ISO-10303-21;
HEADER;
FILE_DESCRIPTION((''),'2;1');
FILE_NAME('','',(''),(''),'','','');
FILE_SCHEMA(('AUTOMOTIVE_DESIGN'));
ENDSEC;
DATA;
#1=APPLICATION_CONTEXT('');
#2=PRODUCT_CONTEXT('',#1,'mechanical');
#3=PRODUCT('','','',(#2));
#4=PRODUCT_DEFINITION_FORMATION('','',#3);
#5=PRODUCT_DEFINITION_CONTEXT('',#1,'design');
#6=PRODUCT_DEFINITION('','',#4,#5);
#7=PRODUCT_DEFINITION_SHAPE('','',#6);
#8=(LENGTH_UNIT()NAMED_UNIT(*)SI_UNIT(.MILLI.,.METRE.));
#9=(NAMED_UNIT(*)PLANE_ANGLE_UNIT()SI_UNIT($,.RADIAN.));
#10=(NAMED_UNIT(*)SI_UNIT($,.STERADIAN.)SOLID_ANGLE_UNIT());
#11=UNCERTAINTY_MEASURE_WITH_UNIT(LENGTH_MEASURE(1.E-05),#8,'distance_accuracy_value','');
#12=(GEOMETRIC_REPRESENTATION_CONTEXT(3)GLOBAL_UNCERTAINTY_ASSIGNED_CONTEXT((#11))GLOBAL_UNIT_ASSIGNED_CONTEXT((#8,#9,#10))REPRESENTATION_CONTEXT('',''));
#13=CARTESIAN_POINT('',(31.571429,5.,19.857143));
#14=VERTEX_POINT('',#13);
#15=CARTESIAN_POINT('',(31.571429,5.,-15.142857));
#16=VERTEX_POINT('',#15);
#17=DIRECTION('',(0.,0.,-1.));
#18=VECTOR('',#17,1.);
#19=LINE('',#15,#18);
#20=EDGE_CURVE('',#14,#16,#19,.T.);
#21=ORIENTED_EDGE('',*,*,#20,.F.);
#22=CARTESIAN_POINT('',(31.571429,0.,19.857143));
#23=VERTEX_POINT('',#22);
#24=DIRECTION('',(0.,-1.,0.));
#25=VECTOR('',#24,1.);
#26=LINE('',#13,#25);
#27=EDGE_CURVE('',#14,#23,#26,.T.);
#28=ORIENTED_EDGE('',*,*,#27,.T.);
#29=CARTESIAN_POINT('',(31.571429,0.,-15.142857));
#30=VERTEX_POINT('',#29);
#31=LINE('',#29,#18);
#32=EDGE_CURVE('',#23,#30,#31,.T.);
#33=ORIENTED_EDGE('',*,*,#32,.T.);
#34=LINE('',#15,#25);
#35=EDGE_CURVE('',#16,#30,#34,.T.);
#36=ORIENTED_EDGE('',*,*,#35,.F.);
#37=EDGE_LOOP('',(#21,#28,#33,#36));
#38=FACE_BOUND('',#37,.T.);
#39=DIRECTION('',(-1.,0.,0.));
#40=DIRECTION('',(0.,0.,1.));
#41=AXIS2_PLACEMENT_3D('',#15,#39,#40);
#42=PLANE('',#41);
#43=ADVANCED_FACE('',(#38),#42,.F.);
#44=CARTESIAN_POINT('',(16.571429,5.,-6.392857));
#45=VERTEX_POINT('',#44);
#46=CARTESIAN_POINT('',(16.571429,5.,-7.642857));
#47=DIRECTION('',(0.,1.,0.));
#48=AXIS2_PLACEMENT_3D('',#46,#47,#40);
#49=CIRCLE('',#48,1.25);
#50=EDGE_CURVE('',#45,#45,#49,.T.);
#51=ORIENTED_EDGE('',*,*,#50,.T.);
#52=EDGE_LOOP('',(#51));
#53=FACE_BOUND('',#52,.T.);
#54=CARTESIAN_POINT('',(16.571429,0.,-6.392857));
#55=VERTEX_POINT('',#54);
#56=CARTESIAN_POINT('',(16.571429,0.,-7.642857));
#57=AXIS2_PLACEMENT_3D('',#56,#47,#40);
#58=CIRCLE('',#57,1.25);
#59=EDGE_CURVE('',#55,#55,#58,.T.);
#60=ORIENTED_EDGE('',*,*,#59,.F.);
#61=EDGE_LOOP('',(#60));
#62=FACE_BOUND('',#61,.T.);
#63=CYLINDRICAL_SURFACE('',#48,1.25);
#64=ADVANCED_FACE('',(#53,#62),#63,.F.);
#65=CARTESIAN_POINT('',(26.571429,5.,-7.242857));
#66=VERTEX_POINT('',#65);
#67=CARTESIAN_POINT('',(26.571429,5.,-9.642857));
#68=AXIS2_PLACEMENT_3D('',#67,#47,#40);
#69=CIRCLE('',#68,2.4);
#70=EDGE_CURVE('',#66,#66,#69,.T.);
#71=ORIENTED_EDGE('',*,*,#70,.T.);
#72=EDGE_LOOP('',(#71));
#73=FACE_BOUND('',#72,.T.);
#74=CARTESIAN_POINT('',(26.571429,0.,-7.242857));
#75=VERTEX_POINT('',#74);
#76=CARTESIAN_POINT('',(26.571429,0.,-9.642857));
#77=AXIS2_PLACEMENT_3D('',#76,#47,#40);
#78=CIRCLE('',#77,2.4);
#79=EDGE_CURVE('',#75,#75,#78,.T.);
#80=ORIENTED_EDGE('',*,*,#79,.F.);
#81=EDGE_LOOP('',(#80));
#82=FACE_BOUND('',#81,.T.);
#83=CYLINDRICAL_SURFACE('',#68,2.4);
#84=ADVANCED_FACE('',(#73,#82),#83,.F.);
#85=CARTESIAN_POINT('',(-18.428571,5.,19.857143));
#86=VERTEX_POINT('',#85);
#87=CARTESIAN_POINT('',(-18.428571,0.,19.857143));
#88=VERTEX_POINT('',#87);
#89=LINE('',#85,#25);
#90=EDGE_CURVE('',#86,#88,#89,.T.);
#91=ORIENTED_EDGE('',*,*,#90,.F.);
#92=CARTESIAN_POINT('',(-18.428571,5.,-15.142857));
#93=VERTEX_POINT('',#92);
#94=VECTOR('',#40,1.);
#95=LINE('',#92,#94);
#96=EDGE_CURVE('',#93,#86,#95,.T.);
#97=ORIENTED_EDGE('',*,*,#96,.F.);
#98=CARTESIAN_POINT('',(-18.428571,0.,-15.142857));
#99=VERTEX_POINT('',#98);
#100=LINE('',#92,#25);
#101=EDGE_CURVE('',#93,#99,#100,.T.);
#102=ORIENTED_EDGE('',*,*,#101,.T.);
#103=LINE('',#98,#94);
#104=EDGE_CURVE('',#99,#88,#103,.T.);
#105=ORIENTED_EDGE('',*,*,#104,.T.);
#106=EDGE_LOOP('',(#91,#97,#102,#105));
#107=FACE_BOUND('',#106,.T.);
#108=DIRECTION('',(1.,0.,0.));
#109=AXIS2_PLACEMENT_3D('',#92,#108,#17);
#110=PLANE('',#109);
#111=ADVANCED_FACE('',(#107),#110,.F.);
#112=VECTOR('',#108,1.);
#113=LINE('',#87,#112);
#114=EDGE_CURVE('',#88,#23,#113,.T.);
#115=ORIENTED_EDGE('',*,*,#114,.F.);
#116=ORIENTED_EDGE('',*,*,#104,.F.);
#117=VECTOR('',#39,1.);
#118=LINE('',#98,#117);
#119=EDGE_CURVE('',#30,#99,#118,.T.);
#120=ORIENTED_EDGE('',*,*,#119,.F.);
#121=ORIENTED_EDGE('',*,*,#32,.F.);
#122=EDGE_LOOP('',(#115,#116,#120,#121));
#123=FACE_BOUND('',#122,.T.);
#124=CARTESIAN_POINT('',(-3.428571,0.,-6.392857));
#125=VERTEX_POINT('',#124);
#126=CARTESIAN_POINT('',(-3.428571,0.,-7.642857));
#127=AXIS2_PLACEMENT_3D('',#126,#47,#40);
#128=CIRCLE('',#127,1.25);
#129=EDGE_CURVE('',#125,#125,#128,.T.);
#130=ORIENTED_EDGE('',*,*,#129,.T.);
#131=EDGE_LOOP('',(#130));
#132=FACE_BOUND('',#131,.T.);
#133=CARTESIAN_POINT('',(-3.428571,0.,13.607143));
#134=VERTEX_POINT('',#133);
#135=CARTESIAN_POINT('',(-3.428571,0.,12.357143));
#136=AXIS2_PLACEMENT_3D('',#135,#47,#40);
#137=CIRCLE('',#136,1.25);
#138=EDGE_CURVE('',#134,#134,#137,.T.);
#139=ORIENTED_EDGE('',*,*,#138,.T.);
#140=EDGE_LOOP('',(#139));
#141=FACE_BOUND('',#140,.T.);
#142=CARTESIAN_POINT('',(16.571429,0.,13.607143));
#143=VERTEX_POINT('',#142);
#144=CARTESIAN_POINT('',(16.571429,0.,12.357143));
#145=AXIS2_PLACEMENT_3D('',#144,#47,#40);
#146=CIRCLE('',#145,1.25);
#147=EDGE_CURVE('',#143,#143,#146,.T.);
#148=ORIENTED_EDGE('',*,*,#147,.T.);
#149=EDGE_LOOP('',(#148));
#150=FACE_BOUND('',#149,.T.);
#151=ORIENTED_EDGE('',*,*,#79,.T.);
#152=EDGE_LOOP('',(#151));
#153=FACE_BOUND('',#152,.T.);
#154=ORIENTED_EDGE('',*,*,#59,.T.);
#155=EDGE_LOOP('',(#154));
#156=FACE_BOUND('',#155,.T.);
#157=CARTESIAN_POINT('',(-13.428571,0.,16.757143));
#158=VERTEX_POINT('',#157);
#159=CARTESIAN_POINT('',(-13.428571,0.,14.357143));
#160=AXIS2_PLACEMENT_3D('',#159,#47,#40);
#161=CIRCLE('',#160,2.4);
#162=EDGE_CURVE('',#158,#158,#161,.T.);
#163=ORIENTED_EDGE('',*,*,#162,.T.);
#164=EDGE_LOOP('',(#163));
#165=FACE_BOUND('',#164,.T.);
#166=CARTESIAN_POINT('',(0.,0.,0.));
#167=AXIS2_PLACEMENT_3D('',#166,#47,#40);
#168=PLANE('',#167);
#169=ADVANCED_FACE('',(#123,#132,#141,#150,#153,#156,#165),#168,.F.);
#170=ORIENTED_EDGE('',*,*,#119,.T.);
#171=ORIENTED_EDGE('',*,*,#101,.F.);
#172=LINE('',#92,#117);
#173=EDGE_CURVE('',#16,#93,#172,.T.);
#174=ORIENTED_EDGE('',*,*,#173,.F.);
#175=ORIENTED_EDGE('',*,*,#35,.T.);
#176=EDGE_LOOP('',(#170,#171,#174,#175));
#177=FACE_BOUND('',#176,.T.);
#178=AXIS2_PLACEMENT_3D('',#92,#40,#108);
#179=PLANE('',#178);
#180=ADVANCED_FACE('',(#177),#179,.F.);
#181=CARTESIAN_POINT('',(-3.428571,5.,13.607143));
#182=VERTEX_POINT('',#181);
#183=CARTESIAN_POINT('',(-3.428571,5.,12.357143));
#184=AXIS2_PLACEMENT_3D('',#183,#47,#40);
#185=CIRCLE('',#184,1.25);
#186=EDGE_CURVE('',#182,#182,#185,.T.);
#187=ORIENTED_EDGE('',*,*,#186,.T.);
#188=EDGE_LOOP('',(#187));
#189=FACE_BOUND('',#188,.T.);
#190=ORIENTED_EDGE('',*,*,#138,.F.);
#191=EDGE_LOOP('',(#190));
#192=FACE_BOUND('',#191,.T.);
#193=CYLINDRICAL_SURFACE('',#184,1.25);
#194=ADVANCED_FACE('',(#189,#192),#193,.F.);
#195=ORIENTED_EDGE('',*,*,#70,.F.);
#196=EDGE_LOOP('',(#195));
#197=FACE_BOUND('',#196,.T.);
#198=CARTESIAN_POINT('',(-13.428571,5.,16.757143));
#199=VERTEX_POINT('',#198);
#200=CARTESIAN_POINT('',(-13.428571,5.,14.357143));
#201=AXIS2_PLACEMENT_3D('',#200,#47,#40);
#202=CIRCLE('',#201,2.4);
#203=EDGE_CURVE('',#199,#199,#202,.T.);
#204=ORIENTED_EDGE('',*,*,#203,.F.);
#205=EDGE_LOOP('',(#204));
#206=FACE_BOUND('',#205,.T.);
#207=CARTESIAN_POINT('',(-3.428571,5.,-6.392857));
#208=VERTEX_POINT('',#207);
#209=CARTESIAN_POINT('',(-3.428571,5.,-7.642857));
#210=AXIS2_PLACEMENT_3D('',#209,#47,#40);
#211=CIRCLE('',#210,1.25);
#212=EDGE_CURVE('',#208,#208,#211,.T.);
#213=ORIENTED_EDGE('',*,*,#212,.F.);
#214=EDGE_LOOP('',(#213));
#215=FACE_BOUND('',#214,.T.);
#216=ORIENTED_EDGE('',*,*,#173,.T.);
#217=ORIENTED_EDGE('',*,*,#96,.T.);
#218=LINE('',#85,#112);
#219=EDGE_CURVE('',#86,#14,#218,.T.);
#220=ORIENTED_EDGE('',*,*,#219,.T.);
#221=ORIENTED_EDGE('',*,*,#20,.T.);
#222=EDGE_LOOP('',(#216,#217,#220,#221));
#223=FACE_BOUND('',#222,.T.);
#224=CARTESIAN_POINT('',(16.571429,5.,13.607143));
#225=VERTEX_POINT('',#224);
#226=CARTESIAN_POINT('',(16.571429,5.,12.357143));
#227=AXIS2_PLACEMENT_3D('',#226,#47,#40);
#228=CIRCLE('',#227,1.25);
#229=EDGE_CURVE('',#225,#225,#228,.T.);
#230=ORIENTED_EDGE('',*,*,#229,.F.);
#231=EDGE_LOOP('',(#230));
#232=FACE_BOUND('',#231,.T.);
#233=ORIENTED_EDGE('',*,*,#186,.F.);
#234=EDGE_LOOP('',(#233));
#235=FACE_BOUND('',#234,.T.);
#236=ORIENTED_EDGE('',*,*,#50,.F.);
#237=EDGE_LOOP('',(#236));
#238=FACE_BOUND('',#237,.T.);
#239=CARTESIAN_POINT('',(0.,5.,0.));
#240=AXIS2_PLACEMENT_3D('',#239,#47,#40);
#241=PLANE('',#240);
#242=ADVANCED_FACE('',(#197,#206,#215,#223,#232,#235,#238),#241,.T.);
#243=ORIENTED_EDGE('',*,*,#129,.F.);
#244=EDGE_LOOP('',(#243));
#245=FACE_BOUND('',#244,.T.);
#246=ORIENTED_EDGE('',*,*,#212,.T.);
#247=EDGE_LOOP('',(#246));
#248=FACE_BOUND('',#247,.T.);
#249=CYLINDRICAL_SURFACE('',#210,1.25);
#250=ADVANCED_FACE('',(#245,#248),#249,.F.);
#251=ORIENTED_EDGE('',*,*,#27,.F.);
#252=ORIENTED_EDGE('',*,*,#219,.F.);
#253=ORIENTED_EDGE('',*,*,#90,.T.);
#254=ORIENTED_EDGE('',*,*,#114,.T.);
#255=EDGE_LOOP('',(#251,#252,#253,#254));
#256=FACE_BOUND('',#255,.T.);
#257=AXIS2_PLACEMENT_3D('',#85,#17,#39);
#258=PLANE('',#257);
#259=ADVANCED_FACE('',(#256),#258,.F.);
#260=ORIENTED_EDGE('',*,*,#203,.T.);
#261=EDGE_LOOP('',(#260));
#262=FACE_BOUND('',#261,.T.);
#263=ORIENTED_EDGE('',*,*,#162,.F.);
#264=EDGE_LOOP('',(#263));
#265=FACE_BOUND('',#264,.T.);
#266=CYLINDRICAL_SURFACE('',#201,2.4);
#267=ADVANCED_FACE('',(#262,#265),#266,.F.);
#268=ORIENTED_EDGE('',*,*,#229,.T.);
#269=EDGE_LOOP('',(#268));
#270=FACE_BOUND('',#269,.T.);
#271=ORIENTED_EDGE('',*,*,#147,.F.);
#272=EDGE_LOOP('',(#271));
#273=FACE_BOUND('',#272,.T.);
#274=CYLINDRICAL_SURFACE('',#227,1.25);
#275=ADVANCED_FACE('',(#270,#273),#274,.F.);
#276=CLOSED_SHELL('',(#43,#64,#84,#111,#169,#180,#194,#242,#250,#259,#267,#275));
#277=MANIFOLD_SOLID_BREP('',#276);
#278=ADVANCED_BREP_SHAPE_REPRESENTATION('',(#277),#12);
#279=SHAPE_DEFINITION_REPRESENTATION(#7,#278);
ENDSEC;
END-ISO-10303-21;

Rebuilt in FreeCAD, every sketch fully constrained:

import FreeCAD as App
import Part
import Sketcher
Q = App.Units.Quantity


def add_polygon(sketch, points):
    """Adds a closed chain of lines whose ends are joined by coincident constraints."""
    first, n = sketch.GeometryCount, len(points)
    for a, b in zip(points, points[1:] + points[:1]):
        sketch.addGeometry(Part.LineSegment(App.Vector(*a, 0), App.Vector(*b, 0)), False)
    for i in range(n):
        sketch.addConstraint(Sketcher.Constraint("Coincident", first + i, 2, first + (i + 1) % n, 1))

doc = App.newDocument("Part")
params = doc.addObject("Spreadsheet::Sheet", "Params")
for row, (alias, value) in enumerate([
    ("sketch1_width", "50 mm"),
    ("sketch1_height", "35 mm"),
    ("pad1_length", "5 mm"),
    ("sketch2_diameter", "2.5 mm"),
    ("hole_diameter", "2.5 mm"),
    ("sketch3_diameter", "4.8 mm"),
    ("hole2_diameter", "4.8 mm"),
], start=1):
    params.set(f"A{row}", alias)
    params.set(f"B{row}", "=" + value)
    params.setAlias(f"B{row}", alias)

body = doc.addObject("PartDesign::Body", "Body")

# Sketch on XZ plane
sketch1 = body.newObject("Sketcher::SketchObject", "Sketch")
sketch1.AttachmentSupport = (doc.getObject("XZ_Plane"), [""])
sketch1.MapMode = "FlatFace"
add_polygon(sketch1, [(-18, -15), (-18, 20), (32, 20), (32, -15)])  # lines 0-3
sketch1.addConstraint(Sketcher.Constraint("Vertical", 0))
sketch1.addConstraint(Sketcher.Constraint("Horizontal", 1))
sketch1.addConstraint(Sketcher.Constraint("Vertical", 2))
sketch1.addConstraint(Sketcher.Constraint("Horizontal", 3))
sketch1.addConstraint(Sketcher.Constraint("DistanceX", 1, 1, 1, 2, Q("50 mm")))
sketch1.addConstraint(Sketcher.Constraint("DistanceY", 0, 1, 0, 2, Q("35 mm")))
sketch1.addConstraint(Sketcher.Constraint("DistanceX", 0, 2, -1, 1, Q("18.428571 mm")))
sketch1.addConstraint(Sketcher.Constraint("DistanceY", -1, 1, 0, 2, Q("19.857143 mm")))
sketch1.setExpression("Constraints[8]", "Params.sketch1_width")
sketch1.setExpression("Constraints[9]", "Params.sketch1_height")
pad1 = body.newObject("PartDesign::Pad", "Pad")
pad1.Profile = sketch1
pad1.setExpression("Length", "Params.pad1_length")
pad1.Reversed = True

# Sketch on XZ plane
sketch2 = body.newObject("Sketcher::SketchObject", "Sketch001")
sketch2.AttachmentSupport = (doc.getObject("XZ_Plane"), [""])
sketch2.MapMode = "FlatFace"
sketch2.AttachmentOffset = App.Placement(App.Vector(0, 0, -5), App.Rotation())
sketch2.addGeometry(Part.Circle(App.Vector(16.6, -7.6, 0), App.Vector(0, 0, 1), 1.2), False)
sketch2.addGeometry(Part.Circle(App.Vector(-3.4, -7.6, 0), App.Vector(0, 0, 1), 1.2), False)
sketch2.addGeometry(Part.Circle(App.Vector(16.6, 12.4, 0), App.Vector(0, 0, 1), 1.2), False)
sketch2.addGeometry(Part.Circle(App.Vector(-3.4, 12.4, 0), App.Vector(0, 0, 1), 1.2), False)
sketch2.addConstraint(Sketcher.Constraint("Equal", 0, 1))
sketch2.addConstraint(Sketcher.Constraint("Equal", 1, 2))
sketch2.addConstraint(Sketcher.Constraint("Equal", 2, 3))
sketch2.addConstraint(Sketcher.Constraint("Horizontal", 0, 3, 1, 3))
sketch2.addConstraint(Sketcher.Constraint("Horizontal", 2, 3, 3, 3))
sketch2.addConstraint(Sketcher.Constraint("Vertical", 0, 3, 2, 3))
sketch2.addConstraint(Sketcher.Constraint("Vertical", 1, 3, 3, 3))
sketch2.addConstraint(Sketcher.Constraint("Diameter", 0, Q("2.5 mm")))
sketch2.addConstraint(Sketcher.Constraint("DistanceX", 1, 3, 0, 3, Q("20 mm")))
sketch2.addConstraint(Sketcher.Constraint("DistanceY", 0, 3, 2, 3, Q("20 mm")))
sketch2.addConstraint(Sketcher.Constraint("DistanceX", -1, 1, 0, 3, Q("16.571429 mm")))
sketch2.addConstraint(Sketcher.Constraint("DistanceY", 0, 3, -1, 1, Q("7.642857 mm")))
sketch2.setExpression("Constraints[7]", "Params.sketch2_diameter")
doc.recompute()
hole = body.newObject("PartDesign::Hole", "Hole")
hole.Profile = sketch2
hole.ThreadType = "None"
hole.setExpression("Diameter", "Params.hole_diameter")
hole.DepthType = "ThroughAll"
hole.Reversed = True

# Sketch on XZ plane
sketch3 = body.newObject("Sketcher::SketchObject", "Sketch002")
sketch3.AttachmentSupport = (doc.getObject("XZ_Plane"), [""])
sketch3.MapMode = "FlatFace"
sketch3.AttachmentOffset = App.Placement(App.Vector(0, 0, -5), App.Rotation())
sketch3.addGeometry(Part.Circle(App.Vector(26.6, -9.6, 0), App.Vector(0, 0, 1), 2.4), False)
sketch3.addGeometry(Part.Circle(App.Vector(-13.4, 14.4, 0), App.Vector(0, 0, 1), 2.4), False)
sketch3.addConstraint(Sketcher.Constraint("Equal", 0, 1))
sketch3.addConstraint(Sketcher.Constraint("Diameter", 0, Q("4.8 mm")))
sketch3.addConstraint(Sketcher.Constraint("DistanceX", 1, 3, 0, 3, Q("40 mm")))
sketch3.addConstraint(Sketcher.Constraint("DistanceY", 0, 3, 1, 3, Q("24 mm")))
sketch3.addConstraint(Sketcher.Constraint("DistanceX", -1, 1, 0, 3, Q("26.571429 mm")))
sketch3.addConstraint(Sketcher.Constraint("DistanceY", 0, 3, -1, 1, Q("9.642857 mm")))
sketch3.setExpression("Constraints[1]", "Params.sketch3_diameter")
doc.recompute()
hole2 = body.newObject("PartDesign::Hole", "Hole001")
hole2.Profile = sketch3
hole2.ThreadType = "None"
hole2.setExpression("Diameter", "Params.hole2_diameter")
hole2.DepthType = "ThroughAll"
hole2.Reversed = True

doc.recompute()
